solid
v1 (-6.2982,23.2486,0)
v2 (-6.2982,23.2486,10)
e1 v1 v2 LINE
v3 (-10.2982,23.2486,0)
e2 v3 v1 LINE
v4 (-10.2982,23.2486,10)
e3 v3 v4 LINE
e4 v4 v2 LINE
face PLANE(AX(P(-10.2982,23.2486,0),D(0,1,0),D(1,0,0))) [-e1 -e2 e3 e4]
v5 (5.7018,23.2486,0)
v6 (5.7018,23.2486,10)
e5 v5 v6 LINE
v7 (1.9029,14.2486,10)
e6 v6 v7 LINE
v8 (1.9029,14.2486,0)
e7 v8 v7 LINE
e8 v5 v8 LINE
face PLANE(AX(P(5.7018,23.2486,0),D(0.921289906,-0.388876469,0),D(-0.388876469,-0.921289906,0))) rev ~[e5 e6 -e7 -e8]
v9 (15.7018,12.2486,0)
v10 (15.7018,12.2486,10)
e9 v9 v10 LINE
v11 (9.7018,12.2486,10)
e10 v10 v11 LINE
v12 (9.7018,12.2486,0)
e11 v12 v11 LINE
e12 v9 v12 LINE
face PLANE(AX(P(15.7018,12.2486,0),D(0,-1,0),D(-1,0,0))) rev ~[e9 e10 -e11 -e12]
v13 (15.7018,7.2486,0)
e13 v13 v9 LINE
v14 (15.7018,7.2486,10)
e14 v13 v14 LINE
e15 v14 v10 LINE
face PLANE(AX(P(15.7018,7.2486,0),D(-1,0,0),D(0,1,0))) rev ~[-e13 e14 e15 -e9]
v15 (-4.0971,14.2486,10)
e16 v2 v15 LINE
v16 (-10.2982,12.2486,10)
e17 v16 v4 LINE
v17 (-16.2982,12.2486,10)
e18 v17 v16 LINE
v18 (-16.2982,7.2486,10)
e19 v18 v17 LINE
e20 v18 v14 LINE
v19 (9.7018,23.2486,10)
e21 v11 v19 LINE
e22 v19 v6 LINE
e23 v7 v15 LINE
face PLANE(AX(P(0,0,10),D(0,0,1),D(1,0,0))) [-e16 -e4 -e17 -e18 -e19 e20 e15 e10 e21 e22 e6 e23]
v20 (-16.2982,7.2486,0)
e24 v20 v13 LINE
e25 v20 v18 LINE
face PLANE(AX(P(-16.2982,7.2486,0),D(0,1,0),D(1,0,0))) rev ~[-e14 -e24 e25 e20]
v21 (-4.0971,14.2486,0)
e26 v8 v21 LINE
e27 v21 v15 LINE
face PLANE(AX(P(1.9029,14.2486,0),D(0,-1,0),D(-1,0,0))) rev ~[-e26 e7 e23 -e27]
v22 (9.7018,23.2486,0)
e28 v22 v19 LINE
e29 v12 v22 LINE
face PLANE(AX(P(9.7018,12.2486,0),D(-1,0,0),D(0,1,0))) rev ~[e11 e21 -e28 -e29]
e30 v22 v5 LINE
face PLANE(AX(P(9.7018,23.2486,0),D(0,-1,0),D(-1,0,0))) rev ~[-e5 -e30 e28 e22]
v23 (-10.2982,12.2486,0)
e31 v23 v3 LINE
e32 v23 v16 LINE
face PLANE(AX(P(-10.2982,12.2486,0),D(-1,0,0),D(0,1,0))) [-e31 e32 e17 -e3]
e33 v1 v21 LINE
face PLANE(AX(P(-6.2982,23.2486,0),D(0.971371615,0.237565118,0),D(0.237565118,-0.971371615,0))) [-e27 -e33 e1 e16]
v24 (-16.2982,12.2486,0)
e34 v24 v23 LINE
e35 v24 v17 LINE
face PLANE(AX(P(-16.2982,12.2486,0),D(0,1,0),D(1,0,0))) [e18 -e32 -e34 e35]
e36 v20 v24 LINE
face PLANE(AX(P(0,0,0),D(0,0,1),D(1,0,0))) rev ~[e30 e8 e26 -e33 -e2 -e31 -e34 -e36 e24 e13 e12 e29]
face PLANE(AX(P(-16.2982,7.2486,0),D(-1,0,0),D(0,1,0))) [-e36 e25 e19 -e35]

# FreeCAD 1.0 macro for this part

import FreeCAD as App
import Part
import Sketcher


def add_polygon(sketch, points):
    """Adds a closed chain of lines whose ends are joined by coincident constraints."""
    first, n = sketch.GeometryCount, len(points)
    for a, b in zip(points, points[1:] + points[:1]):
        sketch.addGeometry(Part.LineSegment(App.Vector(*a, 0), App.Vector(*b, 0)), False)
    for i in range(n):
        sketch.addConstraint(Sketcher.Constraint("Coincident", first + i, 2, first + (i + 1) % n, 1))

doc = App.newDocument("Part")
body = doc.addObject("PartDesign::Body", "Body")

# Sketch on XY plane
sketch1 = body.newObject("Sketcher::SketchObject", "Sketch")
sketch1.AttachmentSupport = (doc.getObject("XY_Plane"), [""])
sketch1.MapMode = "FlatFace"
add_polygon(sketch1, [(-16.3, 7.2), (15.7, 7.2), (15.7, 12.2), (9.7, 12.2), (9.7, 23.2), (5.7, 23.2), (1.9, 14.2), (-4.1, 14.2), (-6.3, 23.2), (-10.3, 23.2), (-10.3, 12.2), (-16.3, 12.2)])  # lines 0-11
sketch1.addConstraint([
    Sketcher.Constraint("Horizontal", 0),
    Sketcher.Constraint("Vertical", 1),
    Sketcher.Constraint("Horizontal", 2),
    Sketcher.Constraint("Vertical", 3),
    Sketcher.Constraint("Horizontal", 4),
    Sketcher.Constraint("Horizontal", 6),
    Sketcher.Constraint("Horizontal", 8),
    Sketcher.Constraint("Vertical", 9),
    Sketcher.Constraint("Horizontal", 10),
    Sketcher.Constraint("Vertical", 11),
    Sketcher.Constraint("Horizontal", 4, 2, 7, 2),
    Sketcher.Constraint("Horizontal", 2, 2, 9, 2),
    Sketcher.Constraint("Equal", 2, 6),
    Sketcher.Constraint("Equal", 4, 8),
    Sketcher.Constraint("Equal", 6, 10),
    Sketcher.Constraint("DistanceX", 0, 1, 0, 2, 32.0),
    Sketcher.Constraint("DistanceX", 2, 2, 2, 1, 6.0),
    Sketcher.Constraint("DistanceX", 4, 2, 4, 1, 4.0),
    Sketcher.Constraint("DistanceY", 1, 1, 1, 2, 5.0),
    Sketcher.Constraint("DistanceY", 0, 2, 3, 2, 16.0),
    Sketcher.Constraint("DistanceY", 5, 2, 4, 2, 9.0),
    Sketcher.Constraint("Distance", 5, 9.769),
    Sketcher.Constraint("DistanceX", -1, 1, 5, 2, 1.903),
    Sketcher.Constraint("DistanceY", -1, 1, 0, 2, 7.2486),
])
pad1 = body.newObject("PartDesign::Pad", "Pad")
pad1.Profile = sketch1
pad1.Length = 10

doc.recompute()
